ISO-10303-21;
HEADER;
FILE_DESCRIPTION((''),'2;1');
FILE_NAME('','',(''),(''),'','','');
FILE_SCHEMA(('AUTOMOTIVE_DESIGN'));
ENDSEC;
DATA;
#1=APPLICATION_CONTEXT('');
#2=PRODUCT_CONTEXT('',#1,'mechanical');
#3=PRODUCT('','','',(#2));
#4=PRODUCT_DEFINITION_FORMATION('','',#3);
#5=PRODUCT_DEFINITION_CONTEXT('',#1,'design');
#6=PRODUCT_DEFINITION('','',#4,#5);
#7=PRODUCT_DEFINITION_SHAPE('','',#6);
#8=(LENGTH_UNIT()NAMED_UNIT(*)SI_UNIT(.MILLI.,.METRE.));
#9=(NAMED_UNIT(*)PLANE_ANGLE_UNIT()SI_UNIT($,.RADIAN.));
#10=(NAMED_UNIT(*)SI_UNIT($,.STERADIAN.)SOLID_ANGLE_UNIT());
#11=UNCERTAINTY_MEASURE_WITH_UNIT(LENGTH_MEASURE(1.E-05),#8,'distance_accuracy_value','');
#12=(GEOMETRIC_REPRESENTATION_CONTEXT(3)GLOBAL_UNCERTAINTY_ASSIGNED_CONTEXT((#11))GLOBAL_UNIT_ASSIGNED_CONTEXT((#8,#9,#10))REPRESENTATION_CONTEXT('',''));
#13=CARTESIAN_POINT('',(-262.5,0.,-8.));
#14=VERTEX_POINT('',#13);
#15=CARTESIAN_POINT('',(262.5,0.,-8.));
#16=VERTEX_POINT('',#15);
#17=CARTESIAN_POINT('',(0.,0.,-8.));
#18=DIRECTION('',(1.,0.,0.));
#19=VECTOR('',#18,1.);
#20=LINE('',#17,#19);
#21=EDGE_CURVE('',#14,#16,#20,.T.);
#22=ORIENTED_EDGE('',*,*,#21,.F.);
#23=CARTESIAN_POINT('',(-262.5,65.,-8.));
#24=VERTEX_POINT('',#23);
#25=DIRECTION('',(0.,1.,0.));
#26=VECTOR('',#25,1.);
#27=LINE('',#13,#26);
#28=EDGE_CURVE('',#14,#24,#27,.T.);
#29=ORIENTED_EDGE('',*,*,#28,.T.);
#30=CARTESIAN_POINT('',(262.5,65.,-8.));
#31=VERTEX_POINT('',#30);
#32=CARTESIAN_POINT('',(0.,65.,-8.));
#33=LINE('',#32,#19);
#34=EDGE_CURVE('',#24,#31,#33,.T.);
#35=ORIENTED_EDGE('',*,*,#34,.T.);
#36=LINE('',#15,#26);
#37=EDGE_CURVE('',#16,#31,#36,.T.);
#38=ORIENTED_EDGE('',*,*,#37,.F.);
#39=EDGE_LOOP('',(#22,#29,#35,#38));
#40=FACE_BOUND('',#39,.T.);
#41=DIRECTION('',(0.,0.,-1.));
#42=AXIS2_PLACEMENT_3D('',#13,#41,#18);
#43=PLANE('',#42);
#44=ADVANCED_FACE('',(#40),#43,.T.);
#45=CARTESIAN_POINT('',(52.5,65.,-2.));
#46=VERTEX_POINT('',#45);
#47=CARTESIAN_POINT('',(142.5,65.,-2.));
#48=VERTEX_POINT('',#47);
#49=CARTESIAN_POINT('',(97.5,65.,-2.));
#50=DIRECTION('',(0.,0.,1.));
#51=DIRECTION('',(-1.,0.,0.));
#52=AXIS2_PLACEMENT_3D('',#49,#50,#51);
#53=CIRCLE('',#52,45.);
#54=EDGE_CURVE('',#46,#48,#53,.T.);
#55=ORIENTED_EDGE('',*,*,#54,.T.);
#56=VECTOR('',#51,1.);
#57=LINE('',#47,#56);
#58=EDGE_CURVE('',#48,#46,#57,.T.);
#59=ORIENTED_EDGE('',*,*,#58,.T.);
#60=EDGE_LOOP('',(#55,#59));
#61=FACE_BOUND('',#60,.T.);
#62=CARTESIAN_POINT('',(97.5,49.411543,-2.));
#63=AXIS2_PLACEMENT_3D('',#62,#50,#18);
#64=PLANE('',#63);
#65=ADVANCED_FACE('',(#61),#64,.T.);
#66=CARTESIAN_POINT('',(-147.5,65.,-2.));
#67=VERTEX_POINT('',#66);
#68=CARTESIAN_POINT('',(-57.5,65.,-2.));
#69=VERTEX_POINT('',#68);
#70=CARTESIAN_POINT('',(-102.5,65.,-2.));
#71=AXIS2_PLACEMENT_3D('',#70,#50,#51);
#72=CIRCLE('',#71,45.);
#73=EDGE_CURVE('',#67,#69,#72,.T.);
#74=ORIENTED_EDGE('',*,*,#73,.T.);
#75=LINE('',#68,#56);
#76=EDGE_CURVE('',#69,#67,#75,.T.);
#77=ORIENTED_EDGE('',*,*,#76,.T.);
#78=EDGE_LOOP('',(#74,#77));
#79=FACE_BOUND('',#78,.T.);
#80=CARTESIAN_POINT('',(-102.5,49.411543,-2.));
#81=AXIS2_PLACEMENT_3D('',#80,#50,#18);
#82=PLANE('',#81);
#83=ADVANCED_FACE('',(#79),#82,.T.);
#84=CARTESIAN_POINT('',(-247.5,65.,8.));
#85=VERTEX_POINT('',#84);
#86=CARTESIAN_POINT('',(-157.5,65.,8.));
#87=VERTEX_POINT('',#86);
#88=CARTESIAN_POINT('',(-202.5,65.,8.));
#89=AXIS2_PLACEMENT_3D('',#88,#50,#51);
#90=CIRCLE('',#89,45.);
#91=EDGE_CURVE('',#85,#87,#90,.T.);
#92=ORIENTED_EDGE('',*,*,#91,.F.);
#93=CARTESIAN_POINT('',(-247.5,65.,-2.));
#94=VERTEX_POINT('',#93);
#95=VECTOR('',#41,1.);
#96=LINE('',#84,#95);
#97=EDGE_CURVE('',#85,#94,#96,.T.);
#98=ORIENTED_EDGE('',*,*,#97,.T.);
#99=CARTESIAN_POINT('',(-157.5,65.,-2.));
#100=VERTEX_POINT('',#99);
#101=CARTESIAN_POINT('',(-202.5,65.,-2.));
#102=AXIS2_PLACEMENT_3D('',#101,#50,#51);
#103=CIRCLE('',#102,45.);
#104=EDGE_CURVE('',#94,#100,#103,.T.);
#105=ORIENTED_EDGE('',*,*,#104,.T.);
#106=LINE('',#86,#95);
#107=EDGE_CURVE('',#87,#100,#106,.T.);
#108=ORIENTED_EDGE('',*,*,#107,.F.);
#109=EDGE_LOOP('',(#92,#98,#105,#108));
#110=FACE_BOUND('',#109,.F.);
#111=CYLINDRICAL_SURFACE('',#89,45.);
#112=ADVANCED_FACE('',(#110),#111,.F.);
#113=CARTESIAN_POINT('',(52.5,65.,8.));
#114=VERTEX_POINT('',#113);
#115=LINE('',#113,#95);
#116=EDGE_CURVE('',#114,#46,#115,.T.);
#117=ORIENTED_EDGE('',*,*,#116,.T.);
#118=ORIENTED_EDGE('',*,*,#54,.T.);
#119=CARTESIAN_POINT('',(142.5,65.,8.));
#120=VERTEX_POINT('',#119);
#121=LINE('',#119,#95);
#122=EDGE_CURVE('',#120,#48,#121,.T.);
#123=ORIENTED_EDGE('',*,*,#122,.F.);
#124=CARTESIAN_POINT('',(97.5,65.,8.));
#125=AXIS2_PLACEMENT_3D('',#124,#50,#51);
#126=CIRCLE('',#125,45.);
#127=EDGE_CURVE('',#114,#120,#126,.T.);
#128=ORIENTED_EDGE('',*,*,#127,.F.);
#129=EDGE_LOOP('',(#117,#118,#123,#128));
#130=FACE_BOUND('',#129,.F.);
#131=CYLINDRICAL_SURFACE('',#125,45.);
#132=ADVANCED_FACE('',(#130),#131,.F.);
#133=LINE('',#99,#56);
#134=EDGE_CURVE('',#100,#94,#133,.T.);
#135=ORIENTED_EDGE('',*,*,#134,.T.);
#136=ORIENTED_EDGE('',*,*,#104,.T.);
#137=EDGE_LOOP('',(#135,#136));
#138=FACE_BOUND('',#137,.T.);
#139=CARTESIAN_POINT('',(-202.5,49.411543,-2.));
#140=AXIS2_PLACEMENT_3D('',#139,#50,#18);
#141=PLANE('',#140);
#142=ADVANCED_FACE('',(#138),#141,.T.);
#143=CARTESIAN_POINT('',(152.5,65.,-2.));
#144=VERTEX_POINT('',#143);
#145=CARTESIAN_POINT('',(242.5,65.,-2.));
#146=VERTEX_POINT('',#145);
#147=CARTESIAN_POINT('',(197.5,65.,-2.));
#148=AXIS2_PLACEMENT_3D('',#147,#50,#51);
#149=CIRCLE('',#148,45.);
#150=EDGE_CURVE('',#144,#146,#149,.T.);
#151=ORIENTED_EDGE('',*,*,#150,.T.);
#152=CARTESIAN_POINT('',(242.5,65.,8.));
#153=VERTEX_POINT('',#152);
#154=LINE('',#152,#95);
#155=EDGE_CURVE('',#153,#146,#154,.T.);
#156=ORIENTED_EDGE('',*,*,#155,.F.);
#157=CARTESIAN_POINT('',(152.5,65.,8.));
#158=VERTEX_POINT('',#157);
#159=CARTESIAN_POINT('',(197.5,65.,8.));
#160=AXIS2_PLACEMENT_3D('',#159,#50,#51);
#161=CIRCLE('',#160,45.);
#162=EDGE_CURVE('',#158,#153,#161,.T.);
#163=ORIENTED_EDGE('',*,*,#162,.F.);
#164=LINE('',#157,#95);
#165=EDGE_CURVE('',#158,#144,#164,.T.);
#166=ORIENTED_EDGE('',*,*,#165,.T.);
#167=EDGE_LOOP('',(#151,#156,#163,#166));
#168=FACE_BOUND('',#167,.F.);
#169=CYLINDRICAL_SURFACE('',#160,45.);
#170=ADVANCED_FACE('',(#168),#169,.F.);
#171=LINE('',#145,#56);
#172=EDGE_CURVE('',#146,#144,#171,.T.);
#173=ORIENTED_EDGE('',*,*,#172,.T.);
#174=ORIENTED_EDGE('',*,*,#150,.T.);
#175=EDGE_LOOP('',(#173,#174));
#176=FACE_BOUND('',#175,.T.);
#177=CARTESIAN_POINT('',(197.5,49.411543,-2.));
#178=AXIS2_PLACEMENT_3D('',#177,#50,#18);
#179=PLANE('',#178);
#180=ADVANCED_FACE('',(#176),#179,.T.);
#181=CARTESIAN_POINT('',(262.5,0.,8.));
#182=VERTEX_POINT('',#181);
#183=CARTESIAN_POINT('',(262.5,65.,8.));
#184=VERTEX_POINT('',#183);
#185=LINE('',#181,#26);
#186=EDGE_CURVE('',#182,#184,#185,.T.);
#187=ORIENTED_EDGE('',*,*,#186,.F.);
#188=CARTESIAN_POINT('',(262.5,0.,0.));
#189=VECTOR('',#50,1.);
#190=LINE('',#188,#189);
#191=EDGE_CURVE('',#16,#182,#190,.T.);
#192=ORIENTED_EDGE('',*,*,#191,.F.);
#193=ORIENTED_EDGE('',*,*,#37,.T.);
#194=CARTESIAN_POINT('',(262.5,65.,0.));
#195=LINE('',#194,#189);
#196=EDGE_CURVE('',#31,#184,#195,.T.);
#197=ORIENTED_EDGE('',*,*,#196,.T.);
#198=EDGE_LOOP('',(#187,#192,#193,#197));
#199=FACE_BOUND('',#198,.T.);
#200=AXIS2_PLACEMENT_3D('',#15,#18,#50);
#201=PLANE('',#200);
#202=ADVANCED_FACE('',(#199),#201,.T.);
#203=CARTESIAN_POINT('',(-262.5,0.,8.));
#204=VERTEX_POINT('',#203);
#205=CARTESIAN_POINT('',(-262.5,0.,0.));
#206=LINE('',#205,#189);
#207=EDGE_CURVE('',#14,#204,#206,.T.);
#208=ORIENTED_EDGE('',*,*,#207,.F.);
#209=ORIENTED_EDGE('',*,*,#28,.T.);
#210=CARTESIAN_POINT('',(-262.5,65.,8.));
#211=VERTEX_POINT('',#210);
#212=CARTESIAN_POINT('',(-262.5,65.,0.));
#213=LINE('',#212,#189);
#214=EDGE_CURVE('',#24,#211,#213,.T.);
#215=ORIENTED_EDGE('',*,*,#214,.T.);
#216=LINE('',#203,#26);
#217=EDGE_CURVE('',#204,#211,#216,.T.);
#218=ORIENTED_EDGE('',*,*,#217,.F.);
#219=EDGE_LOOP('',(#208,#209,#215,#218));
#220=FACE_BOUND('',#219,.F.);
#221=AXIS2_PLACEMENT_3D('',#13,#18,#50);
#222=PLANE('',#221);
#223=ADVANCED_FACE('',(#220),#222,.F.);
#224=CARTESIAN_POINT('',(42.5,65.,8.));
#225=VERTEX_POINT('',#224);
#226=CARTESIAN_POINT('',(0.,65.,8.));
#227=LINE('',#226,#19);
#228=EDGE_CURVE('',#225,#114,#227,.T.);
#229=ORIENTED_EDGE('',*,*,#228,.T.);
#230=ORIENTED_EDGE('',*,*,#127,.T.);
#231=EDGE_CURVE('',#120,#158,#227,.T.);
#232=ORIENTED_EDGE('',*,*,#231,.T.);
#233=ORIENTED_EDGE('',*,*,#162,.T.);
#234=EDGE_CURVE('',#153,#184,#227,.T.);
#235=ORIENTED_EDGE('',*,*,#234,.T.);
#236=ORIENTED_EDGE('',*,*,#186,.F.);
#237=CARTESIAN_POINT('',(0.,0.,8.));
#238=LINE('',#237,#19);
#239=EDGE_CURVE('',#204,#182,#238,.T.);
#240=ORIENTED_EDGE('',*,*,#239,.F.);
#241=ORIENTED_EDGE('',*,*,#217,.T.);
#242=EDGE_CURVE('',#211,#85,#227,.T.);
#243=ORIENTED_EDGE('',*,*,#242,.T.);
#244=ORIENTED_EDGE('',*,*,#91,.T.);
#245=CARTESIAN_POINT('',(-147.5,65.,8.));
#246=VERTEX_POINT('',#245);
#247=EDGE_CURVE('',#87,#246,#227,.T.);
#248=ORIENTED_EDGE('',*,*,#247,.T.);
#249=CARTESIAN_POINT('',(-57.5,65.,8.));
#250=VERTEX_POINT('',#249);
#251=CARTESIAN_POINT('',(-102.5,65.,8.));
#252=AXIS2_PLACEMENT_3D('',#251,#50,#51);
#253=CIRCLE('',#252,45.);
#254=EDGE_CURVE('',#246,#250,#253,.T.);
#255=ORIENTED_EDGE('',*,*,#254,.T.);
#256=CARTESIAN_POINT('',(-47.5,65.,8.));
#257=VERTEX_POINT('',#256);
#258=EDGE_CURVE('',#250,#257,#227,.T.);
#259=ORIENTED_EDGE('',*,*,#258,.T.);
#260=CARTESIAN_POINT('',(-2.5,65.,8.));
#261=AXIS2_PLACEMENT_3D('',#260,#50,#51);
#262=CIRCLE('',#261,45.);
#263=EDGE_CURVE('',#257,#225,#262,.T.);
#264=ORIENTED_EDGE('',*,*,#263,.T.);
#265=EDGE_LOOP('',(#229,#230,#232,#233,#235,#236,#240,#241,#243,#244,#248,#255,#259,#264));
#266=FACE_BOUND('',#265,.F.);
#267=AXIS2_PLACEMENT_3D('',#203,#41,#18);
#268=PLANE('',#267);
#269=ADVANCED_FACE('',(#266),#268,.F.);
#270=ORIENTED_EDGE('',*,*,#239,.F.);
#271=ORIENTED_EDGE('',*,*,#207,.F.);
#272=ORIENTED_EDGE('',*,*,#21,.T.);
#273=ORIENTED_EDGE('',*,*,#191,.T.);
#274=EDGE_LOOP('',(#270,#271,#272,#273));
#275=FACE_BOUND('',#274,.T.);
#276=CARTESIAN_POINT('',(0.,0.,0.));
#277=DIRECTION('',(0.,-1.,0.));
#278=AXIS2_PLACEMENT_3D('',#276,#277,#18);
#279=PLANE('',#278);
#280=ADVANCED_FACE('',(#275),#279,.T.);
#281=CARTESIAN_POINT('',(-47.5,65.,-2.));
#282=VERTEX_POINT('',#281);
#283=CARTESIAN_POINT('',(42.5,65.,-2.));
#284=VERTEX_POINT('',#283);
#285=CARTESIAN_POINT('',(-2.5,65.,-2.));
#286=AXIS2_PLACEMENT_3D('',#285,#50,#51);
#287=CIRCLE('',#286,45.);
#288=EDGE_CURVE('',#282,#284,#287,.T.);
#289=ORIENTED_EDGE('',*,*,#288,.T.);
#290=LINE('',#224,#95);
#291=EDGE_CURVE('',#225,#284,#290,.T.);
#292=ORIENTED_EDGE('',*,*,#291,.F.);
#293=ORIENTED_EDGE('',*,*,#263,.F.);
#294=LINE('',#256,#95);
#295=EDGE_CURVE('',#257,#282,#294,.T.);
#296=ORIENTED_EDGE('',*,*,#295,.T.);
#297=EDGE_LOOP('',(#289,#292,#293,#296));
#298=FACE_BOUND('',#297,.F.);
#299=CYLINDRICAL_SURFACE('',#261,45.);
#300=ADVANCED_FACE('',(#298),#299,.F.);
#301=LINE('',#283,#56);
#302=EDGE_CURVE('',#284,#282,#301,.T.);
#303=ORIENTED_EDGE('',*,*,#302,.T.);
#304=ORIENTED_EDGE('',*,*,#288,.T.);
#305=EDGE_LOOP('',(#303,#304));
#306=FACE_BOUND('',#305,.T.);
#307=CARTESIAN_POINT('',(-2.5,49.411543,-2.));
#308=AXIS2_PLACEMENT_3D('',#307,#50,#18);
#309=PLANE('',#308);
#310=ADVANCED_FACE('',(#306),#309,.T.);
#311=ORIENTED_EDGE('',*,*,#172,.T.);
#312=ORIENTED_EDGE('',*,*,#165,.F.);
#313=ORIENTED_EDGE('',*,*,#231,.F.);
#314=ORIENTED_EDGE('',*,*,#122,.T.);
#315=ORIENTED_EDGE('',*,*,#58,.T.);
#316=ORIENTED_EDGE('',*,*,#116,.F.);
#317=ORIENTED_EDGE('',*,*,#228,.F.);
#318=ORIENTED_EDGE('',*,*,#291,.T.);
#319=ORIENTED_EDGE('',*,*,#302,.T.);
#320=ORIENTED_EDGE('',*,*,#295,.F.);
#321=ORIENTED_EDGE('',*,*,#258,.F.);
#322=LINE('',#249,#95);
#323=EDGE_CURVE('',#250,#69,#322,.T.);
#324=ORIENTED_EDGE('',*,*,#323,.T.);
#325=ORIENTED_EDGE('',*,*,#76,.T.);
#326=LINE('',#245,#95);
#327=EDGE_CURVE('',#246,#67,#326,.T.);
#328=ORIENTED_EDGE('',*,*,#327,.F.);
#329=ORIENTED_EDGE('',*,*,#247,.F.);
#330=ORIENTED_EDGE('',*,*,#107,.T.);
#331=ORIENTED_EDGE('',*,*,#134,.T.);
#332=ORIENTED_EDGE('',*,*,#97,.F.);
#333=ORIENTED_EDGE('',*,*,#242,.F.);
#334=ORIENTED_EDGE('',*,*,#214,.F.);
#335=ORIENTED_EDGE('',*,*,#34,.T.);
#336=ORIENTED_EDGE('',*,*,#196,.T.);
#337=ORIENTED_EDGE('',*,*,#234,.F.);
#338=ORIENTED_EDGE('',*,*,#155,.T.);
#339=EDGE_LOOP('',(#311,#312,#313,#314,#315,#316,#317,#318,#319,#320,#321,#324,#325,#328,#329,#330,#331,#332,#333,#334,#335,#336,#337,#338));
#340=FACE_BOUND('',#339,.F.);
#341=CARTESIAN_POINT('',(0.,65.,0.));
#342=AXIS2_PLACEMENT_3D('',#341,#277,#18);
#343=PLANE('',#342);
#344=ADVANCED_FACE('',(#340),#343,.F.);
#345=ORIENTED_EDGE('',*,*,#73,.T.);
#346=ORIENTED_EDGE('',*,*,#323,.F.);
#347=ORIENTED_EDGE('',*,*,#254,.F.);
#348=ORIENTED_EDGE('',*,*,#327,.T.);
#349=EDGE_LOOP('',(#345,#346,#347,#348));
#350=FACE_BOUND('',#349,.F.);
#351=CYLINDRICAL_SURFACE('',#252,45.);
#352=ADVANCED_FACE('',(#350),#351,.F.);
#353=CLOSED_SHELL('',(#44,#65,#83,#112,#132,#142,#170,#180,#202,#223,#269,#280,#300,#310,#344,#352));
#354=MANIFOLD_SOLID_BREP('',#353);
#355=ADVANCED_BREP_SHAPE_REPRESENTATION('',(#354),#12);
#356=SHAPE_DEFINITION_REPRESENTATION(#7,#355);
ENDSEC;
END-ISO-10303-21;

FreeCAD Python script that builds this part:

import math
import FreeCAD as App
import Part
import Sketcher
Q = App.Units.Quantity


def add_polygon(sketch, points):
    """Adds a closed chain of lines whose ends are joined by coincident constraints."""
    first, n = sketch.GeometryCount, len(points)
    for a, b in zip(points, points[1:] + points[:1]):
        sketch.addGeometry(Part.LineSegment(App.Vector(*a, 0), App.Vector(*b, 0)), False)
    for i in range(n):
        sketch.addConstraint(Sketcher.Constraint("Coincident", first + i, 2, first + (i + 1) % n, 1))

doc = App.newDocument("Part")
body = doc.addObject("PartDesign::Body", "Body")

# Sketch on XZ plane
sketch1 = body.newObject("Sketcher::SketchObject", "Sketch")
sketch1.AttachmentSupport = (doc.getObject("XZ_Plane"), [""])
sketch1.MapMode = "FlatFace"
add_polygon(sketch1, [(-262, 8), (-262, -8), (262, -8), (262, 8)])  # lines 0-3
sketch1.addConstraint([
    Sketcher.Constraint("Vertical", 0),
    Sketcher.Constraint("Horizontal", 1),
    Sketcher.Constraint("Vertical", 2),
    Sketcher.Constraint("Horizontal", 3),
    Sketcher.Constraint("Symmetric", 0, 2, 2, 2, -1, 1),
    Sketcher.Constraint("DistanceX", 1, 1, 1, 2, Q("525 mm")),
    Sketcher.Constraint("DistanceY", 0, 2, 0, 1, Q("16 mm")),
])
pad1 = body.newObject("PartDesign::Pad", "Pad")
pad1.Profile = sketch1
pad1.Length = 65
pad1.Reversed = True

# Sketch on XY plane
sketch2 = body.newObject("Sketcher::SketchObject", "Sketch001")
sketch2.AttachmentSupport = (doc.getObject("XY_Plane"), [""])
sketch2.MapMode = "FlatFace"
sketch2.AttachmentOffset = App.Placement(App.Vector(0, 0, 8), App.Rotation())
sketch2.addGeometry([
    Part.LineSegment(App.Vector(-158, 65, 0), App.Vector(-248, 65, 0)),  # 0
    Part.ArcOfCircle(Part.Circle(App.Vector(-202, 65, 0), App.Vector(0, 0, 1), 45), math.radians(180), math.radians(360)),  # 1
    Part.LineSegment(App.Vector(-58, 65, 0), App.Vector(-148, 65, 0)),  # 2
    Part.ArcOfCircle(Part.Circle(App.Vector(-102, 65, 0), App.Vector(0, 0, 1), 45), math.radians(180), math.radians(360)),  # 3
    Part.LineSegment(App.Vector(42, 65, 0), App.Vector(-48, 65, 0)),  # 4
    Part.ArcOfCircle(Part.Circle(App.Vector(-2, 65, 0), App.Vector(0, 0, 1), 45), math.radians(180), math.radians(360)),  # 5
    Part.ArcOfCircle(Part.Circle(App.Vector(98, 65, 0), App.Vector(0, 0, 1), 45), math.radians(180), math.radians(360)),  # 6
    Part.LineSegment(App.Vector(142, 65, 0), App.Vector(52, 65, 0)),  # 7
    Part.ArcOfCircle(Part.Circle(App.Vector(198, 65, 0), App.Vector(0, 0, 1), 45), math.radians(180), math.radians(360)),  # 8
    Part.LineSegment(App.Vector(242, 65, 0), App.Vector(152, 65, 0)),  # 9
], False)
sketch2.addConstraint([
    Sketcher.Constraint("Coincident", 0, 1, 1, 2),
    Sketcher.Constraint("Coincident", 1, 1, 0, 2),
    Sketcher.Constraint("Coincident", 2, 1, 3, 2),
    Sketcher.Constraint("Coincident", 3, 1, 2, 2),
    Sketcher.Constraint("Coincident", 4, 1, 5, 2),
    Sketcher.Constraint("Coincident", 5, 1, 4, 2),
    Sketcher.Constraint("Coincident", 6, 1, 7, 2),
    Sketcher.Constraint("Coincident", 7, 1, 6, 2),
    Sketcher.Constraint("Coincident", 8, 1, 9, 2),
    Sketcher.Constraint("Coincident", 9, 1, 8, 2),
    Sketcher.Constraint("Horizontal", 0),
    Sketcher.Constraint("Horizontal", 2),
    Sketcher.Constraint("Horizontal", 4),
    Sketcher.Constraint("Horizontal", 7),
    Sketcher.Constraint("Horizontal", 9),
    Sketcher.Constraint("Equal", 1, 3),
    Sketcher.Constraint("Equal", 3, 5),
    Sketcher.Constraint("Equal", 5, 6),
    Sketcher.Constraint("Equal", 6, 8),
    Sketcher.Constraint("Horizontal", 1, 3, 3, 3),
    Sketcher.Constraint("Horizontal", 3, 3, 5, 3),
    Sketcher.Constraint("Horizontal", 5, 3, 6, 3),
    Sketcher.Constraint("Horizontal", 6, 3, 8, 3),
    Sketcher.Constraint("Horizontal", 8, 3, 0, 1),
    Sketcher.Constraint("Horizontal", 1, 1, 2, 1),
    Sketcher.Constraint("Horizontal", 3, 1, 4, 1),
    Sketcher.Constraint("Horizontal", 5, 1, 6, 1),
    Sketcher.Constraint("Horizontal", 7, 1, 8, 1),
    Sketcher.Constraint("Radius", 1, Q("45 mm")),
    Sketcher.Constraint("DistanceY", -1, 1, 1, 3, Q("65 mm")),
    Sketcher.Constraint("DistanceX", 1, 3, 3, 3, Q("100 mm")),
    Sketcher.Constraint("DistanceX", 3, 3, 5, 3, Q("100 mm")),
    Sketcher.Constraint("DistanceX", 5, 3, 6, 3, Q("100 mm")),
    Sketcher.Constraint("DistanceX", 6, 3, 8, 3, Q("100 mm")),
    Sketcher.Constraint("DistanceX", 1, 3, -1, 1, Q("202.5 mm")),
])
pocket1 = body.newObject("PartDesign::Pocket", "Pocket")
pocket1.Profile = sketch2
pocket1.Length = 10

doc.recompute()
